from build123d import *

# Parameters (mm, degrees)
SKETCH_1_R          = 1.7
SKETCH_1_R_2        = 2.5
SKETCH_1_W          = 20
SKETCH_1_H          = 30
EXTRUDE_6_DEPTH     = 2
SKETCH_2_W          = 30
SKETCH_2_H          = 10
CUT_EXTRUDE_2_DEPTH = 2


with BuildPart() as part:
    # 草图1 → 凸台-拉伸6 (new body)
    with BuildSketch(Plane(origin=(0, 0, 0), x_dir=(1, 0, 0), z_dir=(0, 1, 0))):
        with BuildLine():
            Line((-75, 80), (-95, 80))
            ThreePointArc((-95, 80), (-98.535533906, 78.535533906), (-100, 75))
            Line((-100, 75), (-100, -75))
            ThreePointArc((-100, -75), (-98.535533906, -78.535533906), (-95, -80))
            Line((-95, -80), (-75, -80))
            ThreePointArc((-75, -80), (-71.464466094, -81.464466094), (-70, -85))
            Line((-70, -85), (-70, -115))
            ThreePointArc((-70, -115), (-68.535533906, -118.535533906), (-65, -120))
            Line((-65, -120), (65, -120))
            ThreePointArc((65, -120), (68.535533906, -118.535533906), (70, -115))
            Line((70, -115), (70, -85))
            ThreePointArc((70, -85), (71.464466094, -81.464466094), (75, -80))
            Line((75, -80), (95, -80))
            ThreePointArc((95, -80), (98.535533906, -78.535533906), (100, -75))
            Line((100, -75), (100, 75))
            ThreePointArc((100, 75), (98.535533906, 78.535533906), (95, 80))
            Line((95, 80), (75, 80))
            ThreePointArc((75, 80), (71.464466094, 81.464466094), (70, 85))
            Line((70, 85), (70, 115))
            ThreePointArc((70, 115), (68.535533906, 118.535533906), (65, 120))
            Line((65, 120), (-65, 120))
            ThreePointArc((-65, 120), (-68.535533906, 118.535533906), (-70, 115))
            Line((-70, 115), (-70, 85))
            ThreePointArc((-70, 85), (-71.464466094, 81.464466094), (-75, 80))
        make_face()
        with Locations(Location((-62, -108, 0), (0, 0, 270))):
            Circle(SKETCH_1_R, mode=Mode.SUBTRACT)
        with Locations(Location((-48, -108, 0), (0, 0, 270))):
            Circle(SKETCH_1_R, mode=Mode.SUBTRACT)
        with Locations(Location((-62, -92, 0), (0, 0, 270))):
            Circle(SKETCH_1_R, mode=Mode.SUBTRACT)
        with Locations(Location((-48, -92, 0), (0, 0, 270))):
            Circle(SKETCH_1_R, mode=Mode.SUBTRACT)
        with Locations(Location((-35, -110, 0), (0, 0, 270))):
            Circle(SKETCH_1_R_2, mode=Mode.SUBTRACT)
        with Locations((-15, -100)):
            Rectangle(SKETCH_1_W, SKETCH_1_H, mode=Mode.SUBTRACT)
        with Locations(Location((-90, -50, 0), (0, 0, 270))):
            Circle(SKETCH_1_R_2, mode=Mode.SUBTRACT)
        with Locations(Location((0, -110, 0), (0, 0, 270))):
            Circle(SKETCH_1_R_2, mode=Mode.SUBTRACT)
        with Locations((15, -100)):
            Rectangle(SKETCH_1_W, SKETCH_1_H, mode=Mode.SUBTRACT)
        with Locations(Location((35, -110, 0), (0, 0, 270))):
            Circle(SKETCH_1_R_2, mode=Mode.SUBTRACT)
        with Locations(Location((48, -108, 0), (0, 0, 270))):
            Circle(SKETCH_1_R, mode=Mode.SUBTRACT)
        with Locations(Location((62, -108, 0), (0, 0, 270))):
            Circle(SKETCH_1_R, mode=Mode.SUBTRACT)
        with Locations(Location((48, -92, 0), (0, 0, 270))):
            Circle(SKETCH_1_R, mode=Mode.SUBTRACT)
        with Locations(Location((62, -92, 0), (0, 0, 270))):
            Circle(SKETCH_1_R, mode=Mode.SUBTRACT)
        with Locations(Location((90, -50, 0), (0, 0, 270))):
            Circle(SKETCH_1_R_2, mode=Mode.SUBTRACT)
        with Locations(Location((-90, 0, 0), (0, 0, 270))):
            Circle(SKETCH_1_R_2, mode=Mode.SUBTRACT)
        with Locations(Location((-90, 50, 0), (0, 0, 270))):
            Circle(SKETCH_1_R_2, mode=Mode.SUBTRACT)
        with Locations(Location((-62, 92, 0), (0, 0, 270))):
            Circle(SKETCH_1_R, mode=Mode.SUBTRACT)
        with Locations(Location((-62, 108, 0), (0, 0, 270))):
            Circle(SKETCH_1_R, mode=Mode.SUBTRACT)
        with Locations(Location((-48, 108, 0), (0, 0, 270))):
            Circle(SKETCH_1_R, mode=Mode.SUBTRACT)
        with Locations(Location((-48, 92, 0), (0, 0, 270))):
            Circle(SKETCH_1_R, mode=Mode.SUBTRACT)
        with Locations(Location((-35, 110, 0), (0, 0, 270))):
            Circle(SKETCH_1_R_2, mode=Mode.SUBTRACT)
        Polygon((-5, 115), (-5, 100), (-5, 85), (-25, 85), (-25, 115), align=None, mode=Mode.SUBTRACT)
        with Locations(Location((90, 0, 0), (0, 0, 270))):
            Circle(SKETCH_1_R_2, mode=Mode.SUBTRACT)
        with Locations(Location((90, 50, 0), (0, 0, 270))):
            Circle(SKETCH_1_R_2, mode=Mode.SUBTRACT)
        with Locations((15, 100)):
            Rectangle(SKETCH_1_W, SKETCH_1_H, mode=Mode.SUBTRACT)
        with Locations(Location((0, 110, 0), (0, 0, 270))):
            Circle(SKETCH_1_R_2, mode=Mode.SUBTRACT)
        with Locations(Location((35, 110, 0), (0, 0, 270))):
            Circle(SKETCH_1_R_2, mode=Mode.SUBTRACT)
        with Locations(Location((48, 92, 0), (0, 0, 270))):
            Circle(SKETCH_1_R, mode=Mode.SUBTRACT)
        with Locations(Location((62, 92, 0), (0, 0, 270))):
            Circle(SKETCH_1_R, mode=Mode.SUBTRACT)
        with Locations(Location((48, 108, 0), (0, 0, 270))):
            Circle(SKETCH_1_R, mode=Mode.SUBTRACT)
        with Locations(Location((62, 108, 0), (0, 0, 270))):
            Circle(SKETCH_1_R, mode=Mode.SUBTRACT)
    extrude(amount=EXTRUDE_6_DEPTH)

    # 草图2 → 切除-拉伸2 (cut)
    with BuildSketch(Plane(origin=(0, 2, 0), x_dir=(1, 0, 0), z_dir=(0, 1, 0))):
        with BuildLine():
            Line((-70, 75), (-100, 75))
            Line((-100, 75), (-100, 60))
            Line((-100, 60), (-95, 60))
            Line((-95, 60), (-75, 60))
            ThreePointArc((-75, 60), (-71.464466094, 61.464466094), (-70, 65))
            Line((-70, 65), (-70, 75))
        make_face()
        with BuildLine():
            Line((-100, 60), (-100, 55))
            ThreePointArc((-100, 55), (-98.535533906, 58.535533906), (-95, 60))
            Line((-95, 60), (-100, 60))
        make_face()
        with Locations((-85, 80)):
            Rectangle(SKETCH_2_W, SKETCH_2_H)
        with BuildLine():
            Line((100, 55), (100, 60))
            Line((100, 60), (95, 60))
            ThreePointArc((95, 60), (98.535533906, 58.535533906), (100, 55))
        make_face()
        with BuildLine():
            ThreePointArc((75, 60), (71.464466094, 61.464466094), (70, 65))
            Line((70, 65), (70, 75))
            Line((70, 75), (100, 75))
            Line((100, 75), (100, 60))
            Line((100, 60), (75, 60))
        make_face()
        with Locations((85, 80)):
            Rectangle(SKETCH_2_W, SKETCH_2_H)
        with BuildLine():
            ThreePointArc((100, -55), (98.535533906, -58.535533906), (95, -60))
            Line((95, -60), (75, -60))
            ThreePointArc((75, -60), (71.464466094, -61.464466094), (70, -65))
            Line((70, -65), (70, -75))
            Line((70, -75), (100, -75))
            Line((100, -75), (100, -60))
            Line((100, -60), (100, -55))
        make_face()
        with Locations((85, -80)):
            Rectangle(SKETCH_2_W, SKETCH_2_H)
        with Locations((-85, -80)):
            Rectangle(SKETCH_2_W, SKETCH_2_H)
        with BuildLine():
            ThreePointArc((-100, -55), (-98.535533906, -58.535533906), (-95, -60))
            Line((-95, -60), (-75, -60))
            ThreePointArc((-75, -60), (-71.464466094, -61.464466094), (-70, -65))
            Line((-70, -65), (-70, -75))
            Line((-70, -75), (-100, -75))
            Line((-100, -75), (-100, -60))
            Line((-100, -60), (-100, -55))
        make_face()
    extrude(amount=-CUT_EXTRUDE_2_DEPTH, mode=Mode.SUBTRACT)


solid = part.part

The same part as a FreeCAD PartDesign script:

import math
import FreeCAD as App
import Part
import Sketcher

doc = App.newDocument("Part")
body = doc.addObject("PartDesign::Body", "Body")

sketch1 = body.newObject("Sketcher::SketchObject", "Sketch")
sketch1.AttachmentSupport = (doc.getObject("XZ_Plane"), [""])
sketch1.MapMode = "FlatFace"
sketch1.addGeometry([
    Part.LineSegment(App.Vector(-75, -80, 0), App.Vector(-95, -80, 0)),
    Part.ArcOfCircle(Part.Circle(App.Vector(-95, -75, 0), App.Vector(0, 0, 1), 5), math.radians(180), math.radians(270)),
    Part.LineSegment(App.Vector(-100, -75, 0), App.Vector(-100, 75, 0)),
    Part.ArcOfCircle(Part.Circle(App.Vector(-95, 75, 0), App.Vector(0, 0, 1), 5), math.radians(90), math.radians(180)),
    Part.LineSegment(App.Vector(-95, 80, 0), App.Vector(-75, 80, 0)),
    Part.ArcOfCircle(Part.Circle(App.Vector(-75, 85, 0), App.Vector(0, 0, 1), 5), math.radians(-90), math.radians(0)),
    Part.LineSegment(App.Vector(-70, 85, 0), App.Vector(-70, 115, 0)),
    Part.ArcOfCircle(Part.Circle(App.Vector(-65, 115, 0), App.Vector(0, 0, 1), 5), math.radians(90), math.radians(180)),
    Part.LineSegment(App.Vector(-65, 120, 0), App.Vector(65, 120, 0)),
    Part.ArcOfCircle(Part.Circle(App.Vector(65, 115, 0), App.Vector(0, 0, 1), 5), math.radians(0), math.radians(90)),
    Part.LineSegment(App.Vector(70, 115, 0), App.Vector(70, 85, 0)),
    Part.ArcOfCircle(Part.Circle(App.Vector(75, 85, 0), App.Vector(0, 0, 1), 5), math.radians(180), math.radians(270)),
    Part.LineSegment(App.Vector(75, 80, 0), App.Vector(95, 80, 0)),
    Part.ArcOfCircle(Part.Circle(App.Vector(95, 75, 0), App.Vector(0, 0, 1), 5), math.radians(0), math.radians(90)),
    Part.LineSegment(App.Vector(100, 75, 0), App.Vector(100, -75, 0)),
    Part.ArcOfCircle(Part.Circle(App.Vector(95, -75, 0), App.Vector(0, 0, 1), 5), math.radians(-90), math.radians(0)),
    Part.LineSegment(App.Vector(95, -80, 0), App.Vector(75, -80, 0)),
    Part.ArcOfCircle(Part.Circle(App.Vector(75, -85, 0), App.Vector(0, 0, 1), 5), math.radians(90), math.radians(180)),
    Part.LineSegment(App.Vector(70, -85, 0), App.Vector(70, -115, 0)),
    Part.ArcOfCircle(Part.Circle(App.Vector(65, -115, 0), App.Vector(0, 0, 1), 5), math.radians(-90), math.radians(0)),
    Part.LineSegment(App.Vector(65, -120, 0), App.Vector(-65, -120, 0)),
    Part.ArcOfCircle(Part.Circle(App.Vector(-65, -115, 0), App.Vector(0, 0, 1), 5), math.radians(180), math.radians(270)),
    Part.LineSegment(App.Vector(-70, -115, 0), App.Vector(-70, -85, 0)),
    Part.ArcOfCircle(Part.Circle(App.Vector(-75, -85, 0), App.Vector(0, 0, 1), 5), math.radians(0), math.radians(90)),
    Part.Circle(App.Vector(-62, 108, 0), App.Vector(0, 0, 1), 1.7),
    Part.Circle(App.Vector(-48, 108, 0), App.Vector(0, 0, 1), 1.7),
    Part.Circle(App.Vector(-62, 92, 0), App.Vector(0, 0, 1), 1.7),
    Part.Circle(App.Vector(-48, 92, 0), App.Vector(0, 0, 1), 1.7),
    Part.Circle(App.Vector(-35, 110, 0), App.Vector(0, 0, 1), 2.5),
    Part.LineSegment(App.Vector(-5, 115, 0), App.Vector(-25, 115, 0)),
    Part.LineSegment(App.Vector(-25, 115, 0), App.Vector(-25, 85, 0)),
    Part.LineSegment(App.Vector(-25, 85, 0), App.Vector(-5, 85, 0)),
    Part.LineSegment(App.Vector(-5, 85, 0), App.Vector(-5, 115, 0)),
    Part.Circle(App.Vector(-90, 50, 0), App.Vector(0, 0, 1), 2.5),
    Part.Circle(App.Vector(0, 110, 0), App.Vector(0, 0, 1), 2.5),
    Part.LineSegment(App.Vector(25, 115, 0), App.Vector(5, 115, 0)),
    Part.LineSegment(App.Vector(5, 115, 0), App.Vector(5, 85, 0)),
    Part.LineSegment(App.Vector(5, 85, 0), App.Vector(25, 85, 0)),
    Part.LineSegment(App.Vector(25, 85, 0), App.Vector(25, 115, 0)),
    Part.Circle(App.Vector(35, 110, 0), App.Vector(0, 0, 1), 2.5),
    Part.Circle(App.Vector(48, 108, 0), App.Vector(0, 0, 1), 1.7),
    Part.Circle(App.Vector(62, 108, 0), App.Vector(0, 0, 1), 1.7),
    Part.Circle(App.Vector(48, 92, 0), App.Vector(0, 0, 1), 1.7),
    Part.Circle(App.Vector(62, 92, 0), App.Vector(0, 0, 1), 1.7),
    Part.Circle(App.Vector(90, 50, 0), App.Vector(0, 0, 1), 2.5),
    Part.Circle(App.Vector(-90, 0, 0), App.Vector(0, 0, 1), 2.5),
    Part.Circle(App.Vector(-90, -50, 0), App.Vector(0, 0, 1), 2.5),
    Part.Circle(App.Vector(-62, -92, 0), App.Vector(0, 0, 1), 1.7),
    Part.Circle(App.Vector(-48, -92, 0), App.Vector(0, 0, 1), 1.7),
    Part.Circle(App.Vector(-62, -108, 0), App.Vector(0, 0, 1), 1.7),
    Part.Circle(App.Vector(-48, -108, 0), App.Vector(0, 0, 1), 1.7),
    Part.Circle(App.Vector(-35, -110, 0), App.Vector(0, 0, 1), 2.5),
    Part.LineSegment(App.Vector(-25, -115, 0), App.Vector(-5, -115, 0)),
    Part.LineSegment(App.Vector(-5, -115, 0), App.Vector(-5, -85, 0)),
    Part.LineSegment(App.Vector(-5, -85, 0), App.Vector(-25, -85, 0)),
    Part.LineSegment(App.Vector(-25, -85, 0), App.Vector(-25, -115, 0)),
    Part.Circle(App.Vector(90, 0, 0), App.Vector(0, 0, 1), 2.5),
    Part.Circle(App.Vector(90, -50, 0), App.Vector(0, 0, 1), 2.5),
    Part.LineSegment(App.Vector(25, -85, 0), App.Vector(5, -85, 0)),
    Part.LineSegment(App.Vector(5, -85, 0), App.Vector(5, -115, 0)),
    Part.LineSegment(App.Vector(5, -115, 0), App.Vector(25, -115, 0)),
    Part.LineSegment(App.Vector(25, -115, 0), App.Vector(25, -85, 0)),
    Part.Circle(App.Vector(0, -110, 0), App.Vector(0, 0, 1), 2.5),
    Part.Circle(App.Vector(35, -110, 0), App.Vector(0, 0, 1), 2.5),
    Part.Circle(App.Vector(48, -92, 0), App.Vector(0, 0, 1), 1.7),
    Part.Circle(App.Vector(62, -92, 0), App.Vector(0, 0, 1), 1.7),
    Part.Circle(App.Vector(48, -108, 0), App.Vector(0, 0, 1), 1.7),
    Part.Circle(App.Vector(62, -108, 0), App.Vector(0, 0, 1), 1.7),
], False)
sketch1.addConstraint([
    Sketcher.Constraint("Tangent", 0, 2, 1, 2),
    Sketcher.Constraint("Tangent", 1, 1, 2, 1),
    Sketcher.Constraint("Tangent", 2, 2, 3, 2),
    Sketcher.Constraint("Tangent", 3, 1, 4, 1),
    Sketcher.Constraint("Tangent", 4, 2, 5, 1),
    Sketcher.Constraint("Tangent", 5, 2, 6, 1),
    Sketcher.Constraint("Tangent", 6, 2, 7, 2),
    Sketcher.Constraint("Tangent", 7, 1, 8, 1),
    Sketcher.Constraint("Tangent", 8, 2, 9, 2),
    Sketcher.Constraint("Tangent", 9, 1, 10, 1),
    Sketcher.Constraint("Tangent", 10, 2, 11, 1),
    Sketcher.Constraint("Tangent", 11, 2, 12, 1),
    Sketcher.Constraint("Tangent", 12, 2, 13, 2),
    Sketcher.Constraint("Tangent", 13, 1, 14, 1),
    Sketcher.Constraint("Tangent", 14, 2, 15, 2),
    Sketcher.Constraint("Tangent", 15, 1, 16, 1),
    Sketcher.Constraint("Tangent", 16, 2, 17, 1),
    Sketcher.Constraint("Tangent", 17, 2, 18, 1),
    Sketcher.Constraint("Tangent", 18, 2, 19, 2),
    Sketcher.Constraint("Tangent", 19, 1, 20, 1),
    Sketcher.Constraint("Tangent", 20, 2, 21, 2),
    Sketcher.Constraint("Tangent", 21, 1, 22, 1),
    Sketcher.Constraint("Tangent", 22, 2, 23, 1),
    Sketcher.Constraint("Tangent", 23, 2, 0, 1),
    Sketcher.Constraint("Coincident", 29, 2, 30, 1),
    Sketcher.Constraint("Coincident", 30, 2, 31, 1),
    Sketcher.Constraint("Coincident", 31, 2, 32, 1),
    Sketcher.Constraint("Coincident", 32, 2, 29, 1),
    Sketcher.Constraint("Coincident", 35, 2, 36, 1),
    Sketcher.Constraint("Coincident", 36, 2, 37, 1),
    Sketcher.Constraint("Coincident", 37, 2, 38, 1),
    Sketcher.Constraint("Coincident", 38, 2, 35, 1),
    Sketcher.Constraint("Coincident", 52, 2, 53, 1),
    Sketcher.Constraint("Coincident", 53, 2, 54, 1),
    Sketcher.Constraint("Coincident", 54, 2, 55, 1),
    Sketcher.Constraint("Coincident", 55, 2, 52, 1),
    Sketcher.Constraint("Coincident", 58, 2, 59, 1),
    Sketcher.Constraint("Coincident", 59, 2, 60, 1),
    Sketcher.Constraint("Coincident", 60, 2, 61, 1),
    Sketcher.Constraint("Coincident", 61, 2, 58, 1),
    Sketcher.Constraint("Horizontal", 0),
    Sketcher.Constraint("Vertical", 2),
    Sketcher.Constraint("Horizontal", 4),
    Sketcher.Constraint("Vertical", 6),
    Sketcher.Constraint("Horizontal", 8),
    Sketcher.Constraint("Vertical", 10),
    Sketcher.Constraint("Horizontal", 12),
    Sketcher.Constraint("Vertical", 14),
    Sketcher.Constraint("Horizontal", 16),
    Sketcher.Constraint("Vertical", 18),
    Sketcher.Constraint("Horizontal", 20),
    Sketcher.Constraint("Vertical", 22),
    Sketcher.Constraint("Horizontal", 29),
    Sketcher.Constraint("Vertical", 30),
    Sketcher.Constraint("Horizontal", 31),
    Sketcher.Constraint("Vertical", 32),
    Sketcher.Constraint("Horizontal", 35),
    Sketcher.Constraint("Vertical", 36),
    Sketcher.Constraint("Horizontal", 37),
    Sketcher.Constraint("Vertical", 38),
    Sketcher.Constraint("Horizontal", 52),
    Sketcher.Constraint("Vertical", 53),
    Sketcher.Constraint("Horizontal", 54),
    Sketcher.Constraint("Vertical", 55),
    Sketcher.Constraint("Horizontal", 58),
    Sketcher.Constraint("Vertical", 59),
    Sketcher.Constraint("Horizontal", 60),
    Sketcher.Constraint("Vertical", 61),
    Sketcher.Constraint("Equal", 1, 3),
    Sketcher.Constraint("Equal", 3, 5),
    Sketcher.Constraint("Equal", 5, 7),
    Sketcher.Constraint("Equal", 7, 9),
    Sketcher.Constraint("Equal", 9, 11),
    Sketcher.Constraint("Equal", 11, 13),
    Sketcher.Constraint("Equal", 13, 15),
    Sketcher.Constraint("Equal", 15, 17),
    Sketcher.Constraint("Equal", 17, 19),
    Sketcher.Constraint("Equal", 19, 21),
    Sketcher.Constraint("Equal", 21, 23),
    Sketcher.Constraint("Equal", 24, 25),
    Sketcher.Constraint("Equal", 25, 26),
    Sketcher.Constraint("Equal", 26, 27),
    Sketcher.Constraint("Equal", 28, 33),
    Sketcher.Constraint("Equal", 33, 34),
    Sketcher.Constraint("Equal", 34, 39),
    Sketcher.Constraint("Equal", 27, 40),
    Sketcher.Constraint("Equal", 40, 41),
    Sketcher.Constraint("Equal", 41, 42),
    Sketcher.Constraint("Equal", 42, 43),
    Sketcher.Constraint("Equal", 39, 44),
    Sketcher.Constraint("Equal", 44, 45),
    Sketcher.Constraint("Equal", 45, 46),
    Sketcher.Constraint("Equal", 43, 47),
    Sketcher.Constraint("Equal", 47, 48),
    Sketcher.Constraint("Equal", 48, 49),
    Sketcher.Constraint("Equal", 49, 50),
    Sketcher.Constraint("Equal", 46, 51),
    Sketcher.Constraint("Equal", 51, 56),
    Sketcher.Constraint("Equal", 56, 57),
    Sketcher.Constraint("Equal", 57, 62),
    Sketcher.Constraint("Equal", 62, 63),
    Sketcher.Constraint("Equal", 50, 64),
    Sketcher.Constraint("Equal", 64, 65),
    Sketcher.Constraint("Equal", 65, 66),
    Sketcher.Constraint("Equal", 66, 67),
    Sketcher.Constraint("Symmetric", 1, 3, 13, 3, -1, 1),
    Sketcher.Constraint("Symmetric", 5, 3, 17, 3, -1, 1),
    Sketcher.Constraint("Symmetric", 9, 3, 21, 3, -1, 1),
    Sketcher.Constraint("Symmetric", 44, 3, 46, 3, -1, 1),
    Sketcher.Constraint("Symmetric", 43, 3, 47, 3, -1, 1),
    Sketcher.Constraint("Symmetric", 42, 3, 48, 3, -1, 1),
    Sketcher.Constraint("Symmetric", 41, 3, 49, 3, -1, 1),
    Sketcher.Constraint("Symmetric", 40, 3, 50, 3, -1, 1),
    Sketcher.Constraint("Symmetric", 39, 3, 51, 3, -1, 1),
    Sketcher.Constraint("Symmetric", 45, 3, 56, 3, -1, 1),
    Sketcher.Constraint("Symmetric", 33, 3, 57, 3, -1, 1),
    Sketcher.Constraint("Symmetric", 34, 3, 62, 3, -1, 1),
    Sketcher.Constraint("Symmetric", 28, 3, 63, 3, -1, 1),
    Sketcher.Constraint("Symmetric", 27, 3, 64, 3, -1, 1),
    Sketcher.Constraint("Symmetric", 26, 3, 65, 3, -1, 1),
    Sketcher.Constraint("Symmetric", 25, 3, 66, 3, -1, 1),
    Sketcher.Constraint("Symmetric", 24, 3, 67, 3, -1, 1),
    Sketcher.Constraint("Symmetric", 35, 2, 52, 2, -1, 1),
    Sketcher.Constraint("Symmetric", 37, 2, 54, 2, -1, 1),
    Sketcher.Constraint("Symmetric", 31, 2, 58, 2, -1, 1),
    Sketcher.Constraint("Symmetric", 29, 2, 60, 2, -1, 1),
    Sketcher.Constraint("Symmetric", 5, 3, 11, 3, -2),
    Sketcher.Constraint("Symmetric", 28, 3, 39, 3, -2),
    Sketcher.Constraint("Symmetric", 25, 3, 40, 3, -2),
    Sketcher.Constraint("Symmetric", 24, 3, 41, 3, -2),
    Sketcher.Constraint("Symmetric", 27, 3, 42, 3, -2),
    Sketcher.Constraint("Symmetric", 26, 3, 43, 3, -2),
    Sketcher.Constraint("Symmetric", 33, 3, 44, 3, -2),
    Sketcher.Constraint("Symmetric", 32, 2, 35, 2, -2),
    Sketcher.Constraint("Symmetric", 30, 2, 37, 2, -2),
    Sketcher.Constraint("PointOnObject", 34, 3, -2),
    Sketcher.Constraint("PointOnObject", 45, 3, -1),
    Sketcher.Constraint("Horizontal", 24, 3, 25, 3),
    Sketcher.Constraint("Horizontal", 26, 3, 27, 3),
    Sketcher.Constraint("Horizontal", 28, 3, 34, 3),
    Sketcher.Constraint("Horizontal", 9, 1, 29, 2),
    Sketcher.Constraint("Horizontal", 10, 2, 30, 2),
    Sketcher.Constraint("Vertical", 24, 3, 26, 3),
    Sketcher.Constraint("Vertical", 25, 3, 27, 3),
    Sketcher.Constraint("Vertical", 33, 3, 45, 3),
    Sketcher.Constraint("Equal", 16, 29),
    Sketcher.Constraint("Diameter", 28, 5.0),
    Sketcher.Constraint("Radius", 1, 5.0),
    Sketcher.Constraint("Diameter", 24, 3.4),
    Sketcher.Constraint("DistanceX", 0, 2, 0, 1, 20.0),
    Sketcher.Constraint("DistanceX", 8, 1, 8, 2, 130.0),
    Sketcher.Constraint("DistanceY", 2, 1, 2, 2, 150.0),
    Sketcher.Constraint("DistanceY", 6, 1, 6, 2, 30.0),
    Sketcher.Constraint("DistanceX", 24, 3, -1, 1, 62.0),
    Sketcher.Constraint("DistanceY", -1, 1, 24, 3, 108.0),
    Sketcher.Constraint("DistanceX", 25, 3, -1, 1, 48.0),
    Sketcher.Constraint("DistanceY", -1, 1, 26, 3, 92.0),
    Sketcher.Constraint("DistanceX", 28, 3, -1, 1, 35.0),
    Sketcher.Constraint("DistanceY", -1, 1, 28, 3, 110.0),
    Sketcher.Constraint("DistanceX", 33, 3, -1, 1, 90.0),
    Sketcher.Constraint("DistanceY", -1, 1, 33, 3, 50.0),
    Sketcher.Constraint("DistanceX", 29, 2, -1, 1, 25.0),
])
pad1 = body.newObject("PartDesign::Pad", "Pad")
pad1.Profile = sketch1
pad1.Length = 2
pad1.Reversed = True

sketch2 = body.newObject("Sketcher::SketchObject", "Sketch001")
sketch2.AttachmentSupport = (doc.getObject("XZ_Plane"), [""])
sketch2.MapMode = "FlatFace"
sketch2.AttachmentOffset = App.Placement(App.Vector(0, 0, -2), App.Rotation())
sketch2.addGeometry([
    Part.ArcOfCircle(Part.Circle(App.Vector(-95, -55, 0), App.Vector(0, 0, 1), 5), math.radians(180), math.radians(270)),
    Part.LineSegment(App.Vector(-95, -60, 0), App.Vector(-75, -60, 0)),
    Part.ArcOfCircle(Part.Circle(App.Vector(-75, -65, 0), App.Vector(0, 0, 1), 5), math.radians(0), math.radians(90)),
    Part.LineSegment(App.Vector(-70, -65, 0), App.Vector(-70, -85, 0)),
    Part.LineSegment(App.Vector(-70, -85, 0), App.Vector(-100, -85, 0)),
    Part.LineSegment(App.Vector(-100, -85, 0), App.Vector(-100, -55, 0)),
    Part.LineSegment(App.Vector(100, -55, 0), App.Vector(100, -85, 0)),
    Part.LineSegment(App.Vector(100, -85, 0), App.Vector(70, -85, 0)),
    Part.LineSegment(App.Vector(70, -85, 0), App.Vector(70, -65, 0)),
    Part.ArcOfCircle(Part.Circle(App.Vector(75, -65, 0), App.Vector(0, 0, 1), 5), math.radians(90), math.radians(180)),
    Part.LineSegment(App.Vector(75, -60, 0), App.Vector(95, -60, 0)),
    Part.ArcOfCircle(Part.Circle(App.Vector(95, -55, 0), App.Vector(0, 0, 1), 5), math.radians(-90), math.radians(0)),
    Part.ArcOfCircle(Part.Circle(App.Vector(95, 55, 0), App.Vector(0, 0, 1), 5), math.radians(0), math.radians(90)),
    Part.LineSegment(App.Vector(95, 60, 0), App.Vector(75, 60, 0)),
    Part.ArcOfCircle(Part.Circle(App.Vector(75, 65, 0), App.Vector(0, 0, 1), 5), math.radians(180), math.radians(270)),
    Part.LineSegment(App.Vector(70, 65, 0), App.Vector(70, 85, 0)),
    Part.LineSegment(App.Vector(70, 85, 0), App.Vector(100, 85, 0)),
    Part.LineSegment(App.Vector(100, 85, 0), App.Vector(100, 55, 0)),
    Part.LineSegment(App.Vector(-100, 85, 0), App.Vector(-70, 85, 0)),
    Part.LineSegment(App.Vector(-70, 85, 0), App.Vector(-70, 65, 0)),
    Part.ArcOfCircle(Part.Circle(App.Vector(-75, 65, 0), App.Vector(0, 0, 1), 5), math.radians(-90), math.radians(0)),
    Part.LineSegment(App.Vector(-75, 60, 0), App.Vector(-95, 60, 0)),
    Part.ArcOfCircle(Part.Circle(App.Vector(-95, 55, 0), App.Vector(0, 0, 1), 5), math.radians(90), math.radians(180)),
    Part.LineSegment(App.Vector(-100, 55, 0), App.Vector(-100, 85, 0)),
], False)
sketch2.addConstraint([
    Sketcher.Constraint("Tangent", 0, 2, 1, 1),
    Sketcher.Constraint("Tangent", 1, 2, 2, 2),
    Sketcher.Constraint("Tangent", 2, 1, 3, 1),
    Sketcher.Constraint("Coincident", 3, 2, 4, 1),
    Sketcher.Constraint("Coincident", 4, 2, 5, 1),
    Sketcher.Constraint("Tangent", 5, 2, 0, 1),
    Sketcher.Constraint("Coincident", 6, 2, 7, 1),
    Sketcher.Constraint("Coincident", 7, 2, 8, 1),
    Sketcher.Constraint("Tangent", 8, 2, 9, 2),
    Sketcher.Constraint("Tangent", 9, 1, 10, 1),
    Sketcher.Constraint("Tangent", 10, 2, 11, 1),
    Sketcher.Constraint("Tangent", 11, 2, 6, 1),
    Sketcher.Constraint("Tangent", 12, 2, 13, 1),
    Sketcher.Constraint("Tangent", 13, 2, 14, 2),
    Sketcher.Constraint("Tangent", 14, 1, 15, 1),
    Sketcher.Constraint("Coincident", 15, 2, 16, 1),
    Sketcher.Constraint("Coincident", 16, 2, 17, 1),
    Sketcher.Constraint("Tangent", 17, 2, 12, 1),
    Sketcher.Constraint("Coincident", 18, 2, 19, 1),
    Sketcher.Constraint("Tangent", 19, 2, 20, 2),
    Sketcher.Constraint("Tangent", 20, 1, 21, 1),
    Sketcher.Constraint("Tangent", 21, 2, 22, 1),
    Sketcher.Constraint("Tangent", 22, 2, 23, 1),
    Sketcher.Constraint("Coincident", 23, 2, 18, 1),
    Sketcher.Constraint("Horizontal", 1),
    Sketcher.Constraint("Vertical", 3),
    Sketcher.Constraint("Horizontal", 4),
    Sketcher.Constraint("Vertical", 5),
    Sketcher.Constraint("Vertical", 6),
    Sketcher.Constraint("Horizontal", 7),
    Sketcher.Constraint("Vertical", 8),
    Sketcher.Constraint("Horizontal", 10),
    Sketcher.Constraint("Horizontal", 13),
    Sketcher.Constraint("Vertical", 15),
    Sketcher.Constraint("Horizontal", 16),
    Sketcher.Constraint("Vertical", 17),
    Sketcher.Constraint("Horizontal", 18),
    Sketcher.Constraint("Vertical", 19),
    Sketcher.Constraint("Horizontal", 21),
    Sketcher.Constraint("Vertical", 23),
    Sketcher.Constraint("Equal", 0, 2),
    Sketcher.Constraint("Equal", 2, 9),
    Sketcher.Constraint("Equal", 9, 11),
    Sketcher.Constraint("Equal", 11, 12),
    Sketcher.Constraint("Equal", 12, 14),
    Sketcher.Constraint("Equal", 14, 20),
    Sketcher.Constraint("Equal", 20, 22),
    Sketcher.Constraint("Symmetric", 0, 3, 12, 3, -1, 1),
    Sketcher.Constraint("Symmetric", 9, 3, 20, 3, -1, 1),
    Sketcher.Constraint("Symmetric", 3, 2, 15, 2, -1, 1),
    Sketcher.Constraint("Symmetric", 6, 2, 23, 2, -1, 1),
    Sketcher.Constraint("Symmetric", 2, 3, 9, 3, -2),
    Sketcher.Constraint("Symmetric", 4, 2, 6, 2, -2),
    Sketcher.Constraint("Equal", 21, 3),
    Sketcher.Constraint("Radius", 0, 5.0),
    Sketcher.Constraint("DistanceX", 1, 1, 1, 2, 20.0),
    Sketcher.Constraint("DistanceX", 0, 3, -1, 1, 95.0),
    Sketcher.Constraint("DistanceY", 0, 3, -1, 1, 55.0),
])
pocket1 = body.newObject("PartDesign::Pocket", "Pocket")
pocket1.Profile = sketch2
pocket1.Length = 2
pocket1.Reversed = True

doc.recompute()
